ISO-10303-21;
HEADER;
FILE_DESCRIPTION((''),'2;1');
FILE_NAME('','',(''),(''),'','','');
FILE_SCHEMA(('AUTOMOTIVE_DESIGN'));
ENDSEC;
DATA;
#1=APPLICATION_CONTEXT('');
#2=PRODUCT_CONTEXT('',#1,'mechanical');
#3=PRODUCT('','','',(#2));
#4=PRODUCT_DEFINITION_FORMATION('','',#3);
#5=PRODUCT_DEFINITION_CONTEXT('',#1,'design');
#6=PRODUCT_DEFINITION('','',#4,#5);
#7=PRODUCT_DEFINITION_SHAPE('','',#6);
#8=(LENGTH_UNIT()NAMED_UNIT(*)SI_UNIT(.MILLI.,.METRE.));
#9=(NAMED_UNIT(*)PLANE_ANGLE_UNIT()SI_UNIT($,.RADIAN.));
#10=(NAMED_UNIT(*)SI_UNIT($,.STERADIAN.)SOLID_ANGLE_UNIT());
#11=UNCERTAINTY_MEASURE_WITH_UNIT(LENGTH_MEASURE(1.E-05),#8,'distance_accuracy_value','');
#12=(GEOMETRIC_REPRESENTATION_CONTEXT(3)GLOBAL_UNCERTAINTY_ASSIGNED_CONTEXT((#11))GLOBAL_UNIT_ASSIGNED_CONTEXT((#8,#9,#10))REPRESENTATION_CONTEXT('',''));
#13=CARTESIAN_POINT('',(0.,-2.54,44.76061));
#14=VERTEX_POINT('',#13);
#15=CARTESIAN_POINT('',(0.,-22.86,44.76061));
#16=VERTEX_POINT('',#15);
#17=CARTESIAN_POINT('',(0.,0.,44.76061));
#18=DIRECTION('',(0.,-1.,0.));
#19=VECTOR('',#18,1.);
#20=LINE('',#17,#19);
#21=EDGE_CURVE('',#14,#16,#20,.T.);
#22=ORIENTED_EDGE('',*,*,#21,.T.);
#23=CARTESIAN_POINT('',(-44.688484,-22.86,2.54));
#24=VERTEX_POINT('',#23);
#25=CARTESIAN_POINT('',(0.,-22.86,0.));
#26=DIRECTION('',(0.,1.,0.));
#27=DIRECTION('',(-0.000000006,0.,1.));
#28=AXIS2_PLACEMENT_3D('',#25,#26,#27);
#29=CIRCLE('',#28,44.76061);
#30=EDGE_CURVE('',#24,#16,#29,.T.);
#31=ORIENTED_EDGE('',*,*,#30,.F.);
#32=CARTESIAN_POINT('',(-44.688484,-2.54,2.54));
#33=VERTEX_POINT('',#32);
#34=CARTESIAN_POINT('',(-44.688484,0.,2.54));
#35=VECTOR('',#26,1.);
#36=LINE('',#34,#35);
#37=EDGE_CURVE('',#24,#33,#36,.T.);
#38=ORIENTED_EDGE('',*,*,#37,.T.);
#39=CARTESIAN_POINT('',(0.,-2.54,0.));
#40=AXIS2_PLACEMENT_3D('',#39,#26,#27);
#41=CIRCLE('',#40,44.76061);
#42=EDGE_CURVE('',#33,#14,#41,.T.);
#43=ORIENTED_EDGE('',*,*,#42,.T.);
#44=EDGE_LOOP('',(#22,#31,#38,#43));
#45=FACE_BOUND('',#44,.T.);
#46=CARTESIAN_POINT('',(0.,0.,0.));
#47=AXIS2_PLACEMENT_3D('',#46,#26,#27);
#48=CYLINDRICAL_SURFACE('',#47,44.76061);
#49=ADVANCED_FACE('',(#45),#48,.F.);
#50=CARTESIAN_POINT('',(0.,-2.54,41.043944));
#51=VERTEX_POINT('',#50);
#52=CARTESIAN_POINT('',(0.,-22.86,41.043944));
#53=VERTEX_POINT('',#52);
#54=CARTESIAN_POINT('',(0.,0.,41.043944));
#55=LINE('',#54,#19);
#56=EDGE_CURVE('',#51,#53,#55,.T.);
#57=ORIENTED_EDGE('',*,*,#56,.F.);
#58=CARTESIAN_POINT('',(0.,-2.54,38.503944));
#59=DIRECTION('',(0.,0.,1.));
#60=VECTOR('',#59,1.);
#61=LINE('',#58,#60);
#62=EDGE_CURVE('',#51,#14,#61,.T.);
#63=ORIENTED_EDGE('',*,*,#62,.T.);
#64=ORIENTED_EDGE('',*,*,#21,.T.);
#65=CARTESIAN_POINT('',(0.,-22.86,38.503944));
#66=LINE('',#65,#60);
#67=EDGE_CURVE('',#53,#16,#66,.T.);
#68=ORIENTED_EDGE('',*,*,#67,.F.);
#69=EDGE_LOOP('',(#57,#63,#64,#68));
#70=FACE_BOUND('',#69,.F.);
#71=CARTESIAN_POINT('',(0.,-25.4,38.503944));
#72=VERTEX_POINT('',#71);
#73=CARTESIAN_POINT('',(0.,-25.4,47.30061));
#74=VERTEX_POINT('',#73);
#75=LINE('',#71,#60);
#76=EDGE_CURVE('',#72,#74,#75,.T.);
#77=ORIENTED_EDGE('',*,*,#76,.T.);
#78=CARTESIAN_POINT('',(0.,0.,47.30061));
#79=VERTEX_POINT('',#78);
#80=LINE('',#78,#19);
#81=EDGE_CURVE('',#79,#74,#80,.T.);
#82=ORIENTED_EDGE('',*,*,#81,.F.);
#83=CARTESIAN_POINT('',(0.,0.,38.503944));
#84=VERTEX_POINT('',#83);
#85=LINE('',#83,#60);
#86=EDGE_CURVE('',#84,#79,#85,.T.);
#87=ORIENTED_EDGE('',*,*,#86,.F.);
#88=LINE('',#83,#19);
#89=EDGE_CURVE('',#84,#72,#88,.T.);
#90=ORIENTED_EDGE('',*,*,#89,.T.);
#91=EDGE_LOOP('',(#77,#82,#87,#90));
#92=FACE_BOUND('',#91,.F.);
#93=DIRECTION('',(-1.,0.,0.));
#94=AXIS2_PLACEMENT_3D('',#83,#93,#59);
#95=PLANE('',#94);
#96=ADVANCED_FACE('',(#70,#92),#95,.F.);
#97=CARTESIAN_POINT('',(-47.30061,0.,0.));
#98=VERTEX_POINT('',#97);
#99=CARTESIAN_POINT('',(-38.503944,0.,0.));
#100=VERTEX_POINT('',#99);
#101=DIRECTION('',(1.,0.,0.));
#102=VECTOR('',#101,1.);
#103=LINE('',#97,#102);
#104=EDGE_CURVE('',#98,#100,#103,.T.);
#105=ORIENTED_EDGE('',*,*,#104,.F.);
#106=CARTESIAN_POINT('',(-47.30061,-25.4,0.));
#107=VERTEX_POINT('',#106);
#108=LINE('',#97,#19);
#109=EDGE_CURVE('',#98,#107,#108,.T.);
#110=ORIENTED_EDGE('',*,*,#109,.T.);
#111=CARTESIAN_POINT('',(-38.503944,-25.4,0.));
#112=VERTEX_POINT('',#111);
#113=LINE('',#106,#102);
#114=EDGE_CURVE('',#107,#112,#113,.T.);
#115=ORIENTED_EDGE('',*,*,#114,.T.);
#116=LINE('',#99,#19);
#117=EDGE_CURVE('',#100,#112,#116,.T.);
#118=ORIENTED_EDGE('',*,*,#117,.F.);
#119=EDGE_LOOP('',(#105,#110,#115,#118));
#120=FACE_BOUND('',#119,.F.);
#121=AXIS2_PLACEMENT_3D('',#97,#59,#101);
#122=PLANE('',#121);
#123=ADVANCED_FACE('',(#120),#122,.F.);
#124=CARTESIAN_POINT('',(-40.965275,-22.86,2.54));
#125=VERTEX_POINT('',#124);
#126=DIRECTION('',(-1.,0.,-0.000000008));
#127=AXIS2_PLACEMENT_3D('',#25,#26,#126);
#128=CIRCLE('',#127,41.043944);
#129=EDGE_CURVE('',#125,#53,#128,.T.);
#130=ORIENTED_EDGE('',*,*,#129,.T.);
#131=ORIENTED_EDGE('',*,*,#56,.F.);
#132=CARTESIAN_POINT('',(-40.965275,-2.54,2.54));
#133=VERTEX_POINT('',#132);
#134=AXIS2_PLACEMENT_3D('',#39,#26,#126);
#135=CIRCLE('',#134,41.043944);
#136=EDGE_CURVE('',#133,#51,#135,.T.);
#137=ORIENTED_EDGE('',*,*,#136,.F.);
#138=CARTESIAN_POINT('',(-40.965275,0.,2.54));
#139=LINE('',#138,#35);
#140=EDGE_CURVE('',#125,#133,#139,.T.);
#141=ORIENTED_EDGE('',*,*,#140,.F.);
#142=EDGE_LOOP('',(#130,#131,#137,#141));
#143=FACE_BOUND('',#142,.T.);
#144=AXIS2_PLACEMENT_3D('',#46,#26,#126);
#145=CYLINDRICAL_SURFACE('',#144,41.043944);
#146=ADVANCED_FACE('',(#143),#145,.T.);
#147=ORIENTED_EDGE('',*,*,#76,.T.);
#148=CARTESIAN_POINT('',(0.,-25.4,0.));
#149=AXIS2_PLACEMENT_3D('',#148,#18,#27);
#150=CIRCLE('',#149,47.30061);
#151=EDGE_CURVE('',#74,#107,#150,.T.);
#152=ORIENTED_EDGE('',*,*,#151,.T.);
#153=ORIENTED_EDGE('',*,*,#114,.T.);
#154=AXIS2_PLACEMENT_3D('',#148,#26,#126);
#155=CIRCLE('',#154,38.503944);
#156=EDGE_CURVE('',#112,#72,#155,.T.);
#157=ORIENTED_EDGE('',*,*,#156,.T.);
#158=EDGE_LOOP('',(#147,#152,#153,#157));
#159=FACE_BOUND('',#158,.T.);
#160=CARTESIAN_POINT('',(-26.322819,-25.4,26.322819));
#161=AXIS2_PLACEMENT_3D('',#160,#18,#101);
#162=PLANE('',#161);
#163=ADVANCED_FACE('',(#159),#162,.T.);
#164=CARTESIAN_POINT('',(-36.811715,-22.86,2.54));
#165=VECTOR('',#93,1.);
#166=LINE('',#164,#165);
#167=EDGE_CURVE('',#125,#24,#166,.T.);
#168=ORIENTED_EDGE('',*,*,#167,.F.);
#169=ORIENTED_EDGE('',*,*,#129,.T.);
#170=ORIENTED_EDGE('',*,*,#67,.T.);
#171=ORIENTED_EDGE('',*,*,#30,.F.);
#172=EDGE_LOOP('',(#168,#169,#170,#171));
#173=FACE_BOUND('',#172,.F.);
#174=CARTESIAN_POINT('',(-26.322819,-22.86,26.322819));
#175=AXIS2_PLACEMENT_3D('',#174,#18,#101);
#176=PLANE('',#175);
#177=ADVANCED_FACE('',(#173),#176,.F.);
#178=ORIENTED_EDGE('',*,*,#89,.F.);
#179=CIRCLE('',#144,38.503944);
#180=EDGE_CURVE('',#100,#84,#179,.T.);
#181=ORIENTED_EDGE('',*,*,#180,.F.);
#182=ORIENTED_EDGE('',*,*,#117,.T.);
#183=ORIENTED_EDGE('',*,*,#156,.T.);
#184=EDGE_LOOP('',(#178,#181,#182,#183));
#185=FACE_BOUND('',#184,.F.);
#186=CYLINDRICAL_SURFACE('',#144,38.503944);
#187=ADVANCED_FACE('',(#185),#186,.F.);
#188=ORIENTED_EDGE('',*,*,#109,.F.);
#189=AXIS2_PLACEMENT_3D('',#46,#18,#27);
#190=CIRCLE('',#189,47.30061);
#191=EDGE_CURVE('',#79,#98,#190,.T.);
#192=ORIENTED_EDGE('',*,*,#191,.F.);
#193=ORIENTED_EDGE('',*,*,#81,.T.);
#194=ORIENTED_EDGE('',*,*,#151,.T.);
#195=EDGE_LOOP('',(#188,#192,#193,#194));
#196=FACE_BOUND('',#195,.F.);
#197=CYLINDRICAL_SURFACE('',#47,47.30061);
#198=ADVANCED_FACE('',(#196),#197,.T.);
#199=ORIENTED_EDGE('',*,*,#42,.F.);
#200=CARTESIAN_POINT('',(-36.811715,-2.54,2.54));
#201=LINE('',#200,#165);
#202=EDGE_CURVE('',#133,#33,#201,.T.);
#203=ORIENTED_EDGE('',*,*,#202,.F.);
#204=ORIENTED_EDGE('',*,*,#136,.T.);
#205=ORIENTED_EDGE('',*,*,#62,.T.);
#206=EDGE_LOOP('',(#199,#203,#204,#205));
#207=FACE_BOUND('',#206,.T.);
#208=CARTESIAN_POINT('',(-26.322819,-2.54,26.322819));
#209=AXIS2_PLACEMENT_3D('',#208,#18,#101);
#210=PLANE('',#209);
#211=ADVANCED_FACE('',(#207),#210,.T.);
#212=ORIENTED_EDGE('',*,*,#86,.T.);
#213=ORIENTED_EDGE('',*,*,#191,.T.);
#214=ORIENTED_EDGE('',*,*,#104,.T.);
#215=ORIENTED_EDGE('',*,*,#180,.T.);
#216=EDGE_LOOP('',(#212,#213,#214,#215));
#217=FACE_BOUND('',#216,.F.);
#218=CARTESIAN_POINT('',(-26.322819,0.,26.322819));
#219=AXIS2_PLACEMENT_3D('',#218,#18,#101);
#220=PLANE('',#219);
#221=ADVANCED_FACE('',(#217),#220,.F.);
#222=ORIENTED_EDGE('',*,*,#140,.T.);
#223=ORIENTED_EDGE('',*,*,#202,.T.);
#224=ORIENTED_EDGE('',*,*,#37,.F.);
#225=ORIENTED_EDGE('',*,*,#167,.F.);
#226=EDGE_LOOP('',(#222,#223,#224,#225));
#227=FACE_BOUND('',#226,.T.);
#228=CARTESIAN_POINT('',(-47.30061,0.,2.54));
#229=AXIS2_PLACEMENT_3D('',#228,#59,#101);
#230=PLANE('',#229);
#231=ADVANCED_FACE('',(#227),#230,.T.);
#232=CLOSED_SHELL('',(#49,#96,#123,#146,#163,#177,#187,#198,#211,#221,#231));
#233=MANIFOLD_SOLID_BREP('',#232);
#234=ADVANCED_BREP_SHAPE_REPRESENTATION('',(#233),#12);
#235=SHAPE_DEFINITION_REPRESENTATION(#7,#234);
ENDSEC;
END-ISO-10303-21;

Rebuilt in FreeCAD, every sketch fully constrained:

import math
import FreeCAD as App
import Part
import Sketcher
from FreeCAD import Vector
Q = App.Units.Quantity


def faces_at(feature, points):
    """Names of the faces that lie closest to the given points."""
    faces = feature.Shape.Faces
    near = lambda p: min(range(len(faces)), key=lambda i: faces[i].distToShape(Part.Vertex(*p))[0])
    return sorted({f"Face{near(p) + 1}" for p in points})

doc = App.newDocument("Part")
body = doc.addObject("PartDesign::Body", "Body")

# Sketch on XZ plane
sketch1 = body.newObject("Sketcher::SketchObject", "Sketch")
sketch1.AttachmentSupport = (doc.getObject("XZ_Plane"), [""])
sketch1.MapMode = "FlatFace"
sketch1.addGeometry([
    Part.LineSegment(Vector(0, 39, 0), Vector(0, 47, 0)),
    Part.ArcOfCircle(Part.Circle(Vector(0, 0, 0), Vector(0, 0, 1), 47), math.radians(90), math.radians(180)),
    Part.LineSegment(Vector(-47, 0, 0), Vector(-39, 0, 0)),
    Part.ArcOfCircle(Part.Circle(Vector(0, 0, 0), Vector(0, 0, 1), 39), math.radians(90), math.radians(180)),
], False)
sketch1.addConstraint([
    Sketcher.Constraint("Coincident", 0, 2, 1, 1),
    Sketcher.Constraint("Coincident", 1, 2, 2, 1),
    Sketcher.Constraint("Coincident", 2, 2, 3, 2),
    Sketcher.Constraint("Coincident", 3, 1, 0, 1),
    Sketcher.Constraint("Vertical", 0),
    Sketcher.Constraint("Horizontal", 2),
    Sketcher.Constraint("Coincident", 1, 3, -1, 1),
    Sketcher.Constraint("Coincident", 3, 3, -1, 1),
    Sketcher.Constraint("PointOnObject", 0, 2, -2),
    Sketcher.Constraint("PointOnObject", 1, 2, -1),
    Sketcher.Constraint("Radius", 1, 47.30061),
    Sketcher.Constraint("Radius", 3, 38.503944),
])
pad1 = body.newObject("PartDesign::Pad", "Pad")
pad1.Profile = sketch1
pad1.Length = Q("1 in")
doc.recompute()

thickness = body.newObject("PartDesign::Thickness", "Thickness")
thickness.Base = (pad1, faces_at(pad1, [(0, -12.7, 42.902)]))
thickness.Value = Q("0.1 in")
thickness.Reversed = True
thickness.Join = "Arc"

doc.recompute()
